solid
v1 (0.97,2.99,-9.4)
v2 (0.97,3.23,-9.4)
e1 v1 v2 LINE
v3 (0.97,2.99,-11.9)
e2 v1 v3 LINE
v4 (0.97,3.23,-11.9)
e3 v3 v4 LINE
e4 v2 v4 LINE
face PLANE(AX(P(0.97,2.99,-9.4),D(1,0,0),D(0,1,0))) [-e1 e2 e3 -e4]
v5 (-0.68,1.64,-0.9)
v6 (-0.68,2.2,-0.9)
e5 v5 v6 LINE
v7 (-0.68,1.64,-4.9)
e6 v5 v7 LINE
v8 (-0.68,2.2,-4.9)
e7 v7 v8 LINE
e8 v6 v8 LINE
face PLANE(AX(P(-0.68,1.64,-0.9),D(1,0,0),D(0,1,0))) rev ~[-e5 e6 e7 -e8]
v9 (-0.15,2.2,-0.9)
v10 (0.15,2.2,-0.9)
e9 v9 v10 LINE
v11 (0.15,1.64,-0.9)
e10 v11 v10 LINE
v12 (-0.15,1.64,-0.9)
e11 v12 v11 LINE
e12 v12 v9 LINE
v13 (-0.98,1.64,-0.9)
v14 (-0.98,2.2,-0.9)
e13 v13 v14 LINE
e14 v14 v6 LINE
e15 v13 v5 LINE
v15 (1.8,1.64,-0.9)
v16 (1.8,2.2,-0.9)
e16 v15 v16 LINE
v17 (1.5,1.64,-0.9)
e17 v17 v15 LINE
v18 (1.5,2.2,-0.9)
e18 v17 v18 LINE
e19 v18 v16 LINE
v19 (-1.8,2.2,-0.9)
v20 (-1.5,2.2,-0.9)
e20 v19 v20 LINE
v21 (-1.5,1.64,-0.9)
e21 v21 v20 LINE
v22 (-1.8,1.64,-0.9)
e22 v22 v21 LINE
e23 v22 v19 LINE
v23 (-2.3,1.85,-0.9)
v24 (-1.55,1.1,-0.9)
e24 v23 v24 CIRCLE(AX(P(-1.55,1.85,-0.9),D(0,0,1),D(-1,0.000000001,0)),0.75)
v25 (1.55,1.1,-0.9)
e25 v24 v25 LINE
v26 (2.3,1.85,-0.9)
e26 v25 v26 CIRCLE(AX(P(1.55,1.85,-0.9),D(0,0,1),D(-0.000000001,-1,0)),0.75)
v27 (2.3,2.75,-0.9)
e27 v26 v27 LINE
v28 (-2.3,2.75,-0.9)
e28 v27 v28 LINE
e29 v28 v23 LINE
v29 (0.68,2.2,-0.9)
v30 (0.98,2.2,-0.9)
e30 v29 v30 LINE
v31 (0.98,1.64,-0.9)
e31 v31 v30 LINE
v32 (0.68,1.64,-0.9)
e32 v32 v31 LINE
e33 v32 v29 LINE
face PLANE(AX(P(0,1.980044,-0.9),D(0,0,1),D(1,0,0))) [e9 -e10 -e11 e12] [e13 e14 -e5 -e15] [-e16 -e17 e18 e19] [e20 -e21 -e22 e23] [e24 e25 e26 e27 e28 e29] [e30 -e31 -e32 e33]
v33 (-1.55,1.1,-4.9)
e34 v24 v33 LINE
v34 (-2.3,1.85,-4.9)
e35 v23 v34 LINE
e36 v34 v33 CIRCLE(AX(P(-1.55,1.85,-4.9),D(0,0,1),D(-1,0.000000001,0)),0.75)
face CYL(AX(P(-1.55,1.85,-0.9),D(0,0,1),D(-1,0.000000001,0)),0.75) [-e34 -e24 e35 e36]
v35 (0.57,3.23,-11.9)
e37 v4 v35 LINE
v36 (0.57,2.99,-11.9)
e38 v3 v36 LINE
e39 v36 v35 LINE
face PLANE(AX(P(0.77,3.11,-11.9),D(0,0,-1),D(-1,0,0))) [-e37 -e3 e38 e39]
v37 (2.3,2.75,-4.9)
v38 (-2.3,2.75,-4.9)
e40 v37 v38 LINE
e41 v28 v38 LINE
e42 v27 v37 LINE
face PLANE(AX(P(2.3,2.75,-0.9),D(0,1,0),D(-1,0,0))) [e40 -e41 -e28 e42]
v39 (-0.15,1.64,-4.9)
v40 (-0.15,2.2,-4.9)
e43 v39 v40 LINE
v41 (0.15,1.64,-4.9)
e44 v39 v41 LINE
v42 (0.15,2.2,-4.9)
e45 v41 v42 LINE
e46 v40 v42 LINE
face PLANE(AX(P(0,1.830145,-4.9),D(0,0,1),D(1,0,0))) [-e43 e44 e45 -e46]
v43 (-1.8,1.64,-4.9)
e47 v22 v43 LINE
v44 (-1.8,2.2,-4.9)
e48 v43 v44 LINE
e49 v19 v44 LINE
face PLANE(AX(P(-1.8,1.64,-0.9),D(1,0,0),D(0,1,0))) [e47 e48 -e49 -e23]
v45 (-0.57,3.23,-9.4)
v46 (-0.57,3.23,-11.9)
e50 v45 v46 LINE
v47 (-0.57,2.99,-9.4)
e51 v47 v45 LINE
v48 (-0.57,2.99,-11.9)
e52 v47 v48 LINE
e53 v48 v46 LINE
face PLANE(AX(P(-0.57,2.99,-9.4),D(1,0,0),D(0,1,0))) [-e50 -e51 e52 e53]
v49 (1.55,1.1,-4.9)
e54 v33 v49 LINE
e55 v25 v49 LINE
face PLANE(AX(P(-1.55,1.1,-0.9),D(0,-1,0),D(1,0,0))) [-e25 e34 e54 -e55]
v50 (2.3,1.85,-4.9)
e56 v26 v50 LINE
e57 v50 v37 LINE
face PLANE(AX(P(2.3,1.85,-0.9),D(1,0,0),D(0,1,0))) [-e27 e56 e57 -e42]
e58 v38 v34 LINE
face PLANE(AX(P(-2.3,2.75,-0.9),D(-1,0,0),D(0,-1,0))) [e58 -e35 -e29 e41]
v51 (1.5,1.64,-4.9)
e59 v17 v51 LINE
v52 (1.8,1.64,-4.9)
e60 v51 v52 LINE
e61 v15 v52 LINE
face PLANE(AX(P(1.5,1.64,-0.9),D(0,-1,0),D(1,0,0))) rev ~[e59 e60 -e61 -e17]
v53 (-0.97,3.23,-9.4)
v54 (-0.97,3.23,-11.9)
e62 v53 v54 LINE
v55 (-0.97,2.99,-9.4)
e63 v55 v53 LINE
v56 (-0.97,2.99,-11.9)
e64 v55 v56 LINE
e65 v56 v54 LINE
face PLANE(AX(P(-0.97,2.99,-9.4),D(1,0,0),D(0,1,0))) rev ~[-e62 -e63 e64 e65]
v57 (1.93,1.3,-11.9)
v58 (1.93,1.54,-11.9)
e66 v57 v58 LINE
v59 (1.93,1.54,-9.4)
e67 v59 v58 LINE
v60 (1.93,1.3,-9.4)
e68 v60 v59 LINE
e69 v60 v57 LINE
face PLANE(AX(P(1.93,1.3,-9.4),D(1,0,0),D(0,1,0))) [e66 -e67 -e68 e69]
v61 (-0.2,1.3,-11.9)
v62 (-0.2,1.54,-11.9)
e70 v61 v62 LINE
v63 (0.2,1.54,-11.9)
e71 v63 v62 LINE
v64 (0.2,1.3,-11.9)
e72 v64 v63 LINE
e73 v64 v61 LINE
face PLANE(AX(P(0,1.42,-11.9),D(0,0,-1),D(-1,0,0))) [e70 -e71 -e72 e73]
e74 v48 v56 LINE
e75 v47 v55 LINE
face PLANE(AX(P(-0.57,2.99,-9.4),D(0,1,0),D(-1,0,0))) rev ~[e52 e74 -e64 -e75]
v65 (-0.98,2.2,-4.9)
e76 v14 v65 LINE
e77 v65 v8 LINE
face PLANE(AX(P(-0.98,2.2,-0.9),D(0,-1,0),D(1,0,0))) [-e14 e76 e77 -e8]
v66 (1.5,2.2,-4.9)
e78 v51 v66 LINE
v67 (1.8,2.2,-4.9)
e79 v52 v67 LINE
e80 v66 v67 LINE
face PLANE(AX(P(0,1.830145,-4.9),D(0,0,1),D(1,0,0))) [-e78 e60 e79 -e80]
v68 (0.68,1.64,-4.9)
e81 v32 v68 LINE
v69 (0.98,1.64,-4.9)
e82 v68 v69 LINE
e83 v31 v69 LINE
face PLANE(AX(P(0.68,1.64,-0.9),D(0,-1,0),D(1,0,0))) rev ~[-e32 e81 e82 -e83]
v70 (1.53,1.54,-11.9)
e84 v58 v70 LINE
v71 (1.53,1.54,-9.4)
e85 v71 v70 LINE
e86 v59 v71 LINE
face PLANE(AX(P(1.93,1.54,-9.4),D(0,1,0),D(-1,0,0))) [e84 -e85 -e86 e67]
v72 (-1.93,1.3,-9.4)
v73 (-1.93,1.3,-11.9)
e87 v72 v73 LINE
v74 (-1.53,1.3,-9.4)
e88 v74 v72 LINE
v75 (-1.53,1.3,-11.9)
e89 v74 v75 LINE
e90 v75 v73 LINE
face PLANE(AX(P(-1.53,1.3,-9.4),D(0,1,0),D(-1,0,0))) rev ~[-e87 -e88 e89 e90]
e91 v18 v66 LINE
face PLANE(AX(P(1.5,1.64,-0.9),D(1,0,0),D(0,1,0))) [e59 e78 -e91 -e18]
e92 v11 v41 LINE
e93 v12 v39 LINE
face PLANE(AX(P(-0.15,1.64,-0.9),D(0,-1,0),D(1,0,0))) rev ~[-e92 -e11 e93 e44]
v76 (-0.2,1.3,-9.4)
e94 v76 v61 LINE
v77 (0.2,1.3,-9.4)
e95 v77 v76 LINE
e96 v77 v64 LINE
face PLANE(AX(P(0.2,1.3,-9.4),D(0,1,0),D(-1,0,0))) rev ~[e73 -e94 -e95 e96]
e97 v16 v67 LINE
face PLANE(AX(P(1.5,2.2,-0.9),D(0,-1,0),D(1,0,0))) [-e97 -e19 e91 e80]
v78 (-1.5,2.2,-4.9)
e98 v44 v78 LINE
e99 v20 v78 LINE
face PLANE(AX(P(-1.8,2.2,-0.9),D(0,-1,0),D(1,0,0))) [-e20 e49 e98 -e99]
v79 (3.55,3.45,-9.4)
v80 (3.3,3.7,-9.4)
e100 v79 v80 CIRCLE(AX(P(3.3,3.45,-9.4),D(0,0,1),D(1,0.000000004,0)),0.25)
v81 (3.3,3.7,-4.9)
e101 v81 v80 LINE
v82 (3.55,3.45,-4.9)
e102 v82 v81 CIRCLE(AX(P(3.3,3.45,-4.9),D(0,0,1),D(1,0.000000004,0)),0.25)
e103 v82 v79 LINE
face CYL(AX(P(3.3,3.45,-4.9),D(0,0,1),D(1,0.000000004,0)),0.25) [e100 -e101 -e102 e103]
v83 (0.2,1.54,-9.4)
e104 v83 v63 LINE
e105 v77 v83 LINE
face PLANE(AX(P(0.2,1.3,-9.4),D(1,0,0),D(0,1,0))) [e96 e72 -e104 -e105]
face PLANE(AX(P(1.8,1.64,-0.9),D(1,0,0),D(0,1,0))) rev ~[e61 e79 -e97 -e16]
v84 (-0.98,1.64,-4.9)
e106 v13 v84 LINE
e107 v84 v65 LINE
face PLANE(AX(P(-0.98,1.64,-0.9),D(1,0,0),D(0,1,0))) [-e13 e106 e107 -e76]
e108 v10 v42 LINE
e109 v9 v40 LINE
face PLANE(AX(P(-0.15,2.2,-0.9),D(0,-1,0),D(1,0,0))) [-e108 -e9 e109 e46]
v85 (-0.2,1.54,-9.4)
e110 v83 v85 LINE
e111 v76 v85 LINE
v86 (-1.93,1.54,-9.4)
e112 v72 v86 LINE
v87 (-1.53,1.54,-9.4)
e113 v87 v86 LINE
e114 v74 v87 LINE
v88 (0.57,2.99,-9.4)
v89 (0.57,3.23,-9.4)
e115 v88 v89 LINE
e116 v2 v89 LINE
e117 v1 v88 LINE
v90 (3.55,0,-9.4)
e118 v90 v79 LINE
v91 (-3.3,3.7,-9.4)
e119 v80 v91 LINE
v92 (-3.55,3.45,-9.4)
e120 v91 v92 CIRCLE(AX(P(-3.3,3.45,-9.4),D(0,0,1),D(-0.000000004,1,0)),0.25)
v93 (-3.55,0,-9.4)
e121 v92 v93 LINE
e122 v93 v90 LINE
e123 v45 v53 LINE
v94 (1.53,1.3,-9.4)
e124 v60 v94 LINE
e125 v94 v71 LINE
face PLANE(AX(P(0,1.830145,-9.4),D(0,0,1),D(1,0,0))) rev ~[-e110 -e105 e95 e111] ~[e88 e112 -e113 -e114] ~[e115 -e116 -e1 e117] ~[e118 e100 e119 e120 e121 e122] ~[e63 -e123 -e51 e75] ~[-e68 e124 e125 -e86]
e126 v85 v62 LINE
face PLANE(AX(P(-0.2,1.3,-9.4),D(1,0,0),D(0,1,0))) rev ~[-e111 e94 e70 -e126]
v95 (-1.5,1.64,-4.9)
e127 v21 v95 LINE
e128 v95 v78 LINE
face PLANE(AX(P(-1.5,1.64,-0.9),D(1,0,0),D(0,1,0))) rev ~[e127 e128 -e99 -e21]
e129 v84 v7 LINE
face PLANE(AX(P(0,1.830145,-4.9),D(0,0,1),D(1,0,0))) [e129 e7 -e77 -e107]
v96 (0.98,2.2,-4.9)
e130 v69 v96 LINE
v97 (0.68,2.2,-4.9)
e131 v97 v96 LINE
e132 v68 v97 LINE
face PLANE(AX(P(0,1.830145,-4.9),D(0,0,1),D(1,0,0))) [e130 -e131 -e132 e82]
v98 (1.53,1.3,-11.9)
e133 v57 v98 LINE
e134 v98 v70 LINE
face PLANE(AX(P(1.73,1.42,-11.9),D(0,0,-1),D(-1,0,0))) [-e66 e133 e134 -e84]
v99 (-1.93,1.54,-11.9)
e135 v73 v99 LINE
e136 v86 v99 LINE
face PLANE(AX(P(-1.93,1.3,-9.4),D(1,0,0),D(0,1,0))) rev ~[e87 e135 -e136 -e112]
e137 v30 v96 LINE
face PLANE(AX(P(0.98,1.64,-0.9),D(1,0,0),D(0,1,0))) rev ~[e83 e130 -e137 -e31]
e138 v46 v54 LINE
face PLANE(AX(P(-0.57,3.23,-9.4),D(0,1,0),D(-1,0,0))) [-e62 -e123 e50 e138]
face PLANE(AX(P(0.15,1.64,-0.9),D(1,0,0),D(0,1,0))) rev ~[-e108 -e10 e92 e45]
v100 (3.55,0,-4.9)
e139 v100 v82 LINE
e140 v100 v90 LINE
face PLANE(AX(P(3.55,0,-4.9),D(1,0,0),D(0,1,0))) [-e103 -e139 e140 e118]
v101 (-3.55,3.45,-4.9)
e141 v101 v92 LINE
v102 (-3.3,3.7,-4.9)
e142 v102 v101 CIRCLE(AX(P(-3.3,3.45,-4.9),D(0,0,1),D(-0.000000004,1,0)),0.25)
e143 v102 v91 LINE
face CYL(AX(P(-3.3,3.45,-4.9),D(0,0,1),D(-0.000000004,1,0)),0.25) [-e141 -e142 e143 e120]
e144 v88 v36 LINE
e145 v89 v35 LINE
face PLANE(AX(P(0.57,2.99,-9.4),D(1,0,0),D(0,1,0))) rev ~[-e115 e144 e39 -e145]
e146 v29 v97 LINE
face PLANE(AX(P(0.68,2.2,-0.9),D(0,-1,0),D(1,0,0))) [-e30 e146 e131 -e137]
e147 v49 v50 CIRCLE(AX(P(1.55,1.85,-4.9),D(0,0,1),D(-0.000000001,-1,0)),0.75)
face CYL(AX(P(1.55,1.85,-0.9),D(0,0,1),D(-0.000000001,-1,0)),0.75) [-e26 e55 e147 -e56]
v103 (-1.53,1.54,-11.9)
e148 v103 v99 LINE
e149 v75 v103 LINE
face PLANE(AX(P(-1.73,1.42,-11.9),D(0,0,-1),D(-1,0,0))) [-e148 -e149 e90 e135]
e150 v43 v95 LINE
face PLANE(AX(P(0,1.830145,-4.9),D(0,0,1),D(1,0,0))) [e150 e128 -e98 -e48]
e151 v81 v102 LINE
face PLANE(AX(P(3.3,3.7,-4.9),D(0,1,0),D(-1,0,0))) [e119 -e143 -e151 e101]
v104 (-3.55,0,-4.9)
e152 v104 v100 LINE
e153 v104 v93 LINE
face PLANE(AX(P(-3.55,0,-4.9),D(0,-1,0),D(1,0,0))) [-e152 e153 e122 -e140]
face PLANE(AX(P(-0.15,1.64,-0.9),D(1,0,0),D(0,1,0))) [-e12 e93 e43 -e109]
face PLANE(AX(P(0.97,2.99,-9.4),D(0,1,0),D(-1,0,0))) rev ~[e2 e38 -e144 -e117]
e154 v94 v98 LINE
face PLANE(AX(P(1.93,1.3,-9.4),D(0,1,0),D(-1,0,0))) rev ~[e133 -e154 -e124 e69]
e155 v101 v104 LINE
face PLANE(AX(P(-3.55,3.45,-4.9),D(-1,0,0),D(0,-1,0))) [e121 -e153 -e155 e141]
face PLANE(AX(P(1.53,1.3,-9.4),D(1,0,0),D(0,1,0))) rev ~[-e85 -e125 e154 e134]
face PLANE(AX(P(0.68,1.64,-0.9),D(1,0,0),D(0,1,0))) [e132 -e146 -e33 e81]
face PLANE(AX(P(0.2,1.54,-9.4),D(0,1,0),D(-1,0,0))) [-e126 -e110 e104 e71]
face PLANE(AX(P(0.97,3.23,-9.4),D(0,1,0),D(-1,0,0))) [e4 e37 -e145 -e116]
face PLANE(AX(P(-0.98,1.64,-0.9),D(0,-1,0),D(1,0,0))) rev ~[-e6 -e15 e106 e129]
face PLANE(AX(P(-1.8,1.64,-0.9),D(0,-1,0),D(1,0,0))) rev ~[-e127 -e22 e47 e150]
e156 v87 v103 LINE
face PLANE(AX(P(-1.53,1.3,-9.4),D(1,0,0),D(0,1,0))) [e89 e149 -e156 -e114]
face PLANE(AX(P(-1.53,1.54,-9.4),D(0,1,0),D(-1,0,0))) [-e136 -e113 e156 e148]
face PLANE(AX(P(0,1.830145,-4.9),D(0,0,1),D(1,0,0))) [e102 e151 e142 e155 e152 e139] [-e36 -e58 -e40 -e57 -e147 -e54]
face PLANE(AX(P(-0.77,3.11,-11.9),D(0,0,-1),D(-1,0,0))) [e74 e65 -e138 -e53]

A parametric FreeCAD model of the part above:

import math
import FreeCAD as App
import Part
import Sketcher

V = App.Vector
Q = App.Units.Quantity


def add_polygon(sketch, points):
    """Adds a closed chain of lines whose ends are joined by coincident constraints."""
    first, n = sketch.GeometryCount, len(points)
    for a, b in zip(points, points[1:] + points[:1]):
        sketch.addGeometry(Part.LineSegment(App.Vector(*a, 0), App.Vector(*b, 0)), False)
    for i in range(n):
        sketch.addConstraint(Sketcher.Constraint("Coincident", first + i, 2, first + (i + 1) % n, 1))

doc = App.newDocument("Part")
params = doc.addObject("Spreadsheet::Sheet", "Params")
for row, (alias, value) in enumerate([
    ("sketch1_radius", "0.75 mm"),
    ("sketch1_width", "4.6 mm"),
    ("sketch1_width2", "0.3 mm"),
    ("sketch1_height", "0.9 mm"),
    ("sketch1_height2", "0.56 mm"),
    ("pad1_length", "4 mm"),
    ("sketch2_radius", "0.25 mm"),
    ("sketch2_width", "6.6 mm"),
    ("sketch2_height", "3.45 mm"),
    ("pad2_length", "4.5 mm"),
    ("sketch3_width", "0.4 mm"),
    ("sketch3_height", "0.24 mm"),
    ("pad3_length", "2.5 mm"),
], start=1):
    params.set(f"A{row}", alias)
    params.set(f"B{row}", "=" + value)
    params.setAlias(f"B{row}", alias)

body = doc.addObject("PartDesign::Body", "Body")

# Sketch on XY plane
sketch1 = body.newObject("Sketcher::SketchObject", "Sketch")
sketch1.AttachmentSupport = (doc.getObject("XY_Plane"), [""])
sketch1.MapMode = "FlatFace"
sketch1.AttachmentOffset = App.Placement(V(0, 0, -0.9), App.Rotation())
sketch1.addGeometry(Part.LineSegment(V(2.3, 2.75, 0), V(-2.3, 2.75, 0)), False)  # 0
sketch1.addGeometry(Part.LineSegment(V(-2.3, 2.75, 0), V(-2.3, 1.85, 0)), False)  # 1
sketch1.addGeometry(Part.ArcOfCircle(Part.Circle(V(-1.55, 1.85, 0), V(0, 0, 1), 0.75), math.radians(180), math.radians(270)), False)  # 2
sketch1.addGeometry(Part.LineSegment(V(-1.55, 1.1, 0), V(1.55, 1.1, 0)), False)  # 3
sketch1.addGeometry(Part.ArcOfCircle(Part.Circle(V(1.55, 1.85, 0), V(0, 0, 1), 0.75), math.radians(-90), math.radians(0)), False)  # 4
sketch1.addGeometry(Part.LineSegment(V(2.3, 1.85, 0), V(2.3, 2.75, 0)), False)  # 5
add_polygon(sketch1, [(-1.5, 1.64), (-1.8, 1.64), (-1.8, 2.2), (-1.5, 2.2)])  # lines 6-9
add_polygon(sketch1, [(-0.68, 1.64), (-0.98, 1.64), (-0.98, 2.2), (-0.68, 2.2)])  # lines 10-13
add_polygon(sketch1, [(0.15, 1.64), (-0.15, 1.64), (-0.15, 2.2), (0.15, 2.2)])  # lines 14-17
add_polygon(sketch1, [(0.98, 1.64), (0.68, 1.64), (0.68, 2.2), (0.98, 2.2)])  # lines 18-21
add_polygon(sketch1, [(1.8, 1.64), (1.5, 1.64), (1.5, 2.2), (1.8, 2.2)])  # lines 22-25
sketch1.addConstraint([
    Sketcher.Constraint("Coincident", 0, 2, 1, 1),
    Sketcher.Constraint("Tangent", 1, 2, 2, 1),
    Sketcher.Constraint("Tangent", 2, 2, 3, 1),
    Sketcher.Constraint("Tangent", 3, 2, 4, 1),
    Sketcher.Constraint("Tangent", 4, 2, 5, 1),
    Sketcher.Constraint("Coincident", 5, 2, 0, 1),
    Sketcher.Constraint("Horizontal", 0),
    Sketcher.Constraint("Vertical", 1),
    Sketcher.Constraint("Horizontal", 3),
    Sketcher.Constraint("Vertical", 5),
    Sketcher.Constraint("Horizontal", 6),
    Sketcher.Constraint("Vertical", 7),
    Sketcher.Constraint("Horizontal", 8),
    Sketcher.Constraint("Vertical", 9),
    Sketcher.Constraint("Horizontal", 10),
    Sketcher.Constraint("Vertical", 11),
    Sketcher.Constraint("Horizontal", 12),
    Sketcher.Constraint("Vertical", 13),
    Sketcher.Constraint("Horizontal", 14),
    Sketcher.Constraint("Vertical", 15),
    Sketcher.Constraint("Horizontal", 16),
    Sketcher.Constraint("Vertical", 17),
    Sketcher.Constraint("Horizontal", 18),
    Sketcher.Constraint("Vertical", 19),
    Sketcher.Constraint("Horizontal", 20),
    Sketcher.Constraint("Vertical", 21),
    Sketcher.Constraint("Horizontal", 22),
    Sketcher.Constraint("Vertical", 23),
    Sketcher.Constraint("Horizontal", 24),
    Sketcher.Constraint("Vertical", 25),
    Sketcher.Constraint("Equal", 2, 4),
    Sketcher.Constraint("Symmetric", 13, 2, 18, 2, -2),
    Sketcher.Constraint("Symmetric", 11, 2, 20, 2, -2),
    Sketcher.Constraint("Symmetric", 9, 2, 22, 2, -2),
    Sketcher.Constraint("Symmetric", 7, 2, 24, 2, -2),
    Sketcher.Constraint("Horizontal", 9, 2, 10, 2),
    Sketcher.Constraint("Horizontal", 8, 2, 11, 2),
    Sketcher.Constraint("Horizontal", 13, 2, 14, 2),
    Sketcher.Constraint("Horizontal", 12, 2, 15, 2),
    Sketcher.Constraint("Equal", 8, 10),
    Sketcher.Constraint("Equal", 12, 14),
    Sketcher.Constraint("Radius", 2, Q("0.75 mm")),
    Sketcher.Constraint("DistanceX", 0, 2, 0, 1, Q("4.6 mm")),
    Sketcher.Constraint("DistanceX", 6, 2, 6, 1, Q("0.3 mm")),
    Sketcher.Constraint("DistanceY", 1, 2, 1, 1, Q("0.9 mm")),
    Sketcher.Constraint("DistanceY", 7, 1, 7, 2, Q("0.56 mm")),
    Sketcher.Constraint("DistanceX", 0, 2, -1, 1, Q("2.3 mm")),
    Sketcher.Constraint("DistanceY", -1, 1, 2, 2, Q("1.1 mm")),
    Sketcher.Constraint("DistanceX", 6, 2, -1, 1, Q("1.8 mm")),
    Sketcher.Constraint("DistanceY", -1, 1, 7, 2, Q("2.2 mm")),
    Sketcher.Constraint("DistanceX", 10, 2, -1, 1, Q("0.98 mm")),
    Sketcher.Constraint("DistanceX", 14, 2, -1, 1, Q("0.15 mm")),
])
sketch1.setExpression("Constraints[61]", "Params.sketch1_radius")
sketch1.setExpression("Constraints[62]", "Params.sketch1_width")
sketch1.setExpression("Constraints[63]", "Params.sketch1_width2")
sketch1.setExpression("Constraints[64]", "Params.sketch1_height")
sketch1.setExpression("Constraints[65]", "Params.sketch1_height2")
pad1 = body.newObject("PartDesign::Pad", "Pad")
pad1.Profile = sketch1
pad1.setExpression("Length", "Params.pad1_length")
pad1.Reversed = True

# Sketch on XY plane
sketch2 = body.newObject("Sketcher::SketchObject", "Sketch001")
sketch2.AttachmentSupport = (doc.getObject("XY_Plane"), [""])
sketch2.MapMode = "FlatFace"
sketch2.AttachmentOffset = App.Placement(V(0, 0, -4.9), App.Rotation())
sketch2.addGeometry([
    Part.LineSegment(V(-3.3, 3.7, 0), V(3.3, 3.7, 0)),  # 0
    Part.ArcOfCircle(Part.Circle(V(3.3, 3.45, 0), V(0, 0, 1), 0.25), math.radians(0), math.radians(90)),  # 1
    Part.LineSegment(V(3.55, 3.45, 0), V(3.55, 0, 0)),  # 2
    Part.LineSegment(V(3.55, 0, 0), V(-3.55, 0, 0)),  # 3
    Part.LineSegment(V(-3.55, 0, 0), V(-3.55, 3.45, 0)),  # 4
    Part.ArcOfCircle(Part.Circle(V(-3.3, 3.45, 0), V(0, 0, 1), 0.25), math.radians(90), math.radians(180)),  # 5
], False)
sketch2.addConstraint([
    Sketcher.Constraint("Tangent", 0, 2, 1, 2),
    Sketcher.Constraint("Tangent", 1, 1, 2, 1),
    Sketcher.Constraint("Coincident", 2, 2, 3, 1),
    Sketcher.Constraint("Coincident", 3, 2, 4, 1),
    Sketcher.Constraint("Tangent", 4, 2, 5, 2),
    Sketcher.Constraint("Tangent", 5, 1, 0, 1),
    Sketcher.Constraint("Horizontal", 0),
    Sketcher.Constraint("Vertical", 2),
    Sketcher.Constraint("Horizontal", 3),
    Sketcher.Constraint("Vertical", 4),
    Sketcher.Constraint("Equal", 1, 5),
    Sketcher.Constraint("Symmetric", 2, 2, 3, 2, -1, 1),
    Sketcher.Constraint("Radius", 1, Q("0.25 mm")),
    Sketcher.Constraint("DistanceX", 0, 1, 0, 2, Q("6.6 mm")),
    Sketcher.Constraint("DistanceY", 2, 2, 2, 1, Q("3.45 mm")),
])
sketch2.setExpression("Constraints[12]", "Params.sketch2_radius")
sketch2.setExpression("Constraints[13]", "Params.sketch2_width")
sketch2.setExpression("Constraints[14]", "Params.sketch2_height")
pad2 = body.newObject("PartDesign::Pad", "Pad001")
pad2.Profile = sketch2
pad2.setExpression("Length", "Params.pad2_length")
pad2.Reversed = True

# Sketch on XY plane
sketch3 = body.newObject("Sketcher::SketchObject", "Sketch002")
sketch3.AttachmentSupport = (doc.getObject("XY_Plane"), [""])
sketch3.MapMode = "FlatFace"
sketch3.AttachmentOffset = App.Placement(V(0, 0, -9.4), App.Rotation())
add_polygon(sketch3, [(0.97, 3.23), (0.97, 2.99), (0.57, 2.99), (0.57, 3.23)])  # lines 0-3
add_polygon(sketch3, [(-0.57, 3.23), (-0.57, 2.99), (-0.97, 2.99), (-0.97, 3.23)])  # lines 4-7
add_polygon(sketch3, [(0.2, 1.54), (0.2, 1.3), (-0.2, 1.3), (-0.2, 1.54)])  # lines 8-11
add_polygon(sketch3, [(-1.53, 1.54), (-1.53, 1.3), (-1.93, 1.3), (-1.93, 1.54)])  # lines 12-15
add_polygon(sketch3, [(1.93, 1.54), (1.93, 1.3), (1.53, 1.3), (1.53, 1.54)])  # lines 16-19
sketch3.addConstraint([
    Sketcher.Constraint("Vertical", 0),
    Sketcher.Constraint("Horizontal", 1),
    Sketcher.Constraint("Vertical", 2),
    Sketcher.Constraint("Horizontal", 3),
    Sketcher.Constraint("Vertical", 4),
    Sketcher.Constraint("Horizontal", 5),
    Sketcher.Constraint("Vertical", 6),
    Sketcher.Constraint("Horizontal", 7),
    Sketcher.Constraint("Vertical", 8),
    Sketcher.Constraint("Horizontal", 9),
    Sketcher.Constraint("Vertical", 10),
    Sketcher.Constraint("Horizontal", 11),
    Sketcher.Constraint("Vertical", 12),
    Sketcher.Constraint("Horizontal", 13),
    Sketcher.Constraint("Vertical", 14),
    Sketcher.Constraint("Horizontal", 15),
    Sketcher.Constraint("Vertical", 16),
    Sketcher.Constraint("Horizontal", 17),
    Sketcher.Constraint("Vertical", 18),
    Sketcher.Constraint("Horizontal", 19),
    Sketcher.Constraint("Symmetric", 1, 2, 4, 2, -2),
    Sketcher.Constraint("Symmetric", 3, 2, 6, 2, -2),
    Sketcher.Constraint("Symmetric", 13, 2, 16, 2, -2),
    Sketcher.Constraint("Symmetric", 15, 2, 18, 2, -2),
    Sketcher.Constraint("Horizontal", 9, 2, 12, 2),
    Sketcher.Constraint("Horizontal", 11, 2, 14, 2),
    Sketcher.Constraint("Equal", 7, 9),
    Sketcher.Constraint("Equal", 11, 13),
    Sketcher.Constraint("Equal", 6, 8),
    Sketcher.Constraint("DistanceX", 1, 2, 1, 1, Q("0.4 mm")),
    Sketcher.Constraint("DistanceY", 0, 2, 0, 1, Q("0.24 mm")),
    Sketcher.Constraint("DistanceX", -1, 1, 8, 2, Q("0.2 mm")),
    Sketcher.Constraint("DistanceY", -1, 1, 8, 2, Q("1.3 mm")),
    Sketcher.Constraint("DistanceX", -1, 1, 0, 2, Q("0.97 mm")),
    Sketcher.Constraint("DistanceY", -1, 1, 0, 2, Q("2.99 mm")),
    Sketcher.Constraint("DistanceX", 12, 2, -1, 1, Q("1.53 mm")),
])
sketch3.setExpression("Constraints[49]", "Params.sketch3_width")
sketch3.setExpression("Constraints[50]", "Params.sketch3_height")
pad3 = body.newObject("PartDesign::Pad", "Pad002")
pad3.Profile = sketch3
pad3.setExpression("Length", "Params.pad3_length")
pad3.Reversed = True

doc.recompute()
